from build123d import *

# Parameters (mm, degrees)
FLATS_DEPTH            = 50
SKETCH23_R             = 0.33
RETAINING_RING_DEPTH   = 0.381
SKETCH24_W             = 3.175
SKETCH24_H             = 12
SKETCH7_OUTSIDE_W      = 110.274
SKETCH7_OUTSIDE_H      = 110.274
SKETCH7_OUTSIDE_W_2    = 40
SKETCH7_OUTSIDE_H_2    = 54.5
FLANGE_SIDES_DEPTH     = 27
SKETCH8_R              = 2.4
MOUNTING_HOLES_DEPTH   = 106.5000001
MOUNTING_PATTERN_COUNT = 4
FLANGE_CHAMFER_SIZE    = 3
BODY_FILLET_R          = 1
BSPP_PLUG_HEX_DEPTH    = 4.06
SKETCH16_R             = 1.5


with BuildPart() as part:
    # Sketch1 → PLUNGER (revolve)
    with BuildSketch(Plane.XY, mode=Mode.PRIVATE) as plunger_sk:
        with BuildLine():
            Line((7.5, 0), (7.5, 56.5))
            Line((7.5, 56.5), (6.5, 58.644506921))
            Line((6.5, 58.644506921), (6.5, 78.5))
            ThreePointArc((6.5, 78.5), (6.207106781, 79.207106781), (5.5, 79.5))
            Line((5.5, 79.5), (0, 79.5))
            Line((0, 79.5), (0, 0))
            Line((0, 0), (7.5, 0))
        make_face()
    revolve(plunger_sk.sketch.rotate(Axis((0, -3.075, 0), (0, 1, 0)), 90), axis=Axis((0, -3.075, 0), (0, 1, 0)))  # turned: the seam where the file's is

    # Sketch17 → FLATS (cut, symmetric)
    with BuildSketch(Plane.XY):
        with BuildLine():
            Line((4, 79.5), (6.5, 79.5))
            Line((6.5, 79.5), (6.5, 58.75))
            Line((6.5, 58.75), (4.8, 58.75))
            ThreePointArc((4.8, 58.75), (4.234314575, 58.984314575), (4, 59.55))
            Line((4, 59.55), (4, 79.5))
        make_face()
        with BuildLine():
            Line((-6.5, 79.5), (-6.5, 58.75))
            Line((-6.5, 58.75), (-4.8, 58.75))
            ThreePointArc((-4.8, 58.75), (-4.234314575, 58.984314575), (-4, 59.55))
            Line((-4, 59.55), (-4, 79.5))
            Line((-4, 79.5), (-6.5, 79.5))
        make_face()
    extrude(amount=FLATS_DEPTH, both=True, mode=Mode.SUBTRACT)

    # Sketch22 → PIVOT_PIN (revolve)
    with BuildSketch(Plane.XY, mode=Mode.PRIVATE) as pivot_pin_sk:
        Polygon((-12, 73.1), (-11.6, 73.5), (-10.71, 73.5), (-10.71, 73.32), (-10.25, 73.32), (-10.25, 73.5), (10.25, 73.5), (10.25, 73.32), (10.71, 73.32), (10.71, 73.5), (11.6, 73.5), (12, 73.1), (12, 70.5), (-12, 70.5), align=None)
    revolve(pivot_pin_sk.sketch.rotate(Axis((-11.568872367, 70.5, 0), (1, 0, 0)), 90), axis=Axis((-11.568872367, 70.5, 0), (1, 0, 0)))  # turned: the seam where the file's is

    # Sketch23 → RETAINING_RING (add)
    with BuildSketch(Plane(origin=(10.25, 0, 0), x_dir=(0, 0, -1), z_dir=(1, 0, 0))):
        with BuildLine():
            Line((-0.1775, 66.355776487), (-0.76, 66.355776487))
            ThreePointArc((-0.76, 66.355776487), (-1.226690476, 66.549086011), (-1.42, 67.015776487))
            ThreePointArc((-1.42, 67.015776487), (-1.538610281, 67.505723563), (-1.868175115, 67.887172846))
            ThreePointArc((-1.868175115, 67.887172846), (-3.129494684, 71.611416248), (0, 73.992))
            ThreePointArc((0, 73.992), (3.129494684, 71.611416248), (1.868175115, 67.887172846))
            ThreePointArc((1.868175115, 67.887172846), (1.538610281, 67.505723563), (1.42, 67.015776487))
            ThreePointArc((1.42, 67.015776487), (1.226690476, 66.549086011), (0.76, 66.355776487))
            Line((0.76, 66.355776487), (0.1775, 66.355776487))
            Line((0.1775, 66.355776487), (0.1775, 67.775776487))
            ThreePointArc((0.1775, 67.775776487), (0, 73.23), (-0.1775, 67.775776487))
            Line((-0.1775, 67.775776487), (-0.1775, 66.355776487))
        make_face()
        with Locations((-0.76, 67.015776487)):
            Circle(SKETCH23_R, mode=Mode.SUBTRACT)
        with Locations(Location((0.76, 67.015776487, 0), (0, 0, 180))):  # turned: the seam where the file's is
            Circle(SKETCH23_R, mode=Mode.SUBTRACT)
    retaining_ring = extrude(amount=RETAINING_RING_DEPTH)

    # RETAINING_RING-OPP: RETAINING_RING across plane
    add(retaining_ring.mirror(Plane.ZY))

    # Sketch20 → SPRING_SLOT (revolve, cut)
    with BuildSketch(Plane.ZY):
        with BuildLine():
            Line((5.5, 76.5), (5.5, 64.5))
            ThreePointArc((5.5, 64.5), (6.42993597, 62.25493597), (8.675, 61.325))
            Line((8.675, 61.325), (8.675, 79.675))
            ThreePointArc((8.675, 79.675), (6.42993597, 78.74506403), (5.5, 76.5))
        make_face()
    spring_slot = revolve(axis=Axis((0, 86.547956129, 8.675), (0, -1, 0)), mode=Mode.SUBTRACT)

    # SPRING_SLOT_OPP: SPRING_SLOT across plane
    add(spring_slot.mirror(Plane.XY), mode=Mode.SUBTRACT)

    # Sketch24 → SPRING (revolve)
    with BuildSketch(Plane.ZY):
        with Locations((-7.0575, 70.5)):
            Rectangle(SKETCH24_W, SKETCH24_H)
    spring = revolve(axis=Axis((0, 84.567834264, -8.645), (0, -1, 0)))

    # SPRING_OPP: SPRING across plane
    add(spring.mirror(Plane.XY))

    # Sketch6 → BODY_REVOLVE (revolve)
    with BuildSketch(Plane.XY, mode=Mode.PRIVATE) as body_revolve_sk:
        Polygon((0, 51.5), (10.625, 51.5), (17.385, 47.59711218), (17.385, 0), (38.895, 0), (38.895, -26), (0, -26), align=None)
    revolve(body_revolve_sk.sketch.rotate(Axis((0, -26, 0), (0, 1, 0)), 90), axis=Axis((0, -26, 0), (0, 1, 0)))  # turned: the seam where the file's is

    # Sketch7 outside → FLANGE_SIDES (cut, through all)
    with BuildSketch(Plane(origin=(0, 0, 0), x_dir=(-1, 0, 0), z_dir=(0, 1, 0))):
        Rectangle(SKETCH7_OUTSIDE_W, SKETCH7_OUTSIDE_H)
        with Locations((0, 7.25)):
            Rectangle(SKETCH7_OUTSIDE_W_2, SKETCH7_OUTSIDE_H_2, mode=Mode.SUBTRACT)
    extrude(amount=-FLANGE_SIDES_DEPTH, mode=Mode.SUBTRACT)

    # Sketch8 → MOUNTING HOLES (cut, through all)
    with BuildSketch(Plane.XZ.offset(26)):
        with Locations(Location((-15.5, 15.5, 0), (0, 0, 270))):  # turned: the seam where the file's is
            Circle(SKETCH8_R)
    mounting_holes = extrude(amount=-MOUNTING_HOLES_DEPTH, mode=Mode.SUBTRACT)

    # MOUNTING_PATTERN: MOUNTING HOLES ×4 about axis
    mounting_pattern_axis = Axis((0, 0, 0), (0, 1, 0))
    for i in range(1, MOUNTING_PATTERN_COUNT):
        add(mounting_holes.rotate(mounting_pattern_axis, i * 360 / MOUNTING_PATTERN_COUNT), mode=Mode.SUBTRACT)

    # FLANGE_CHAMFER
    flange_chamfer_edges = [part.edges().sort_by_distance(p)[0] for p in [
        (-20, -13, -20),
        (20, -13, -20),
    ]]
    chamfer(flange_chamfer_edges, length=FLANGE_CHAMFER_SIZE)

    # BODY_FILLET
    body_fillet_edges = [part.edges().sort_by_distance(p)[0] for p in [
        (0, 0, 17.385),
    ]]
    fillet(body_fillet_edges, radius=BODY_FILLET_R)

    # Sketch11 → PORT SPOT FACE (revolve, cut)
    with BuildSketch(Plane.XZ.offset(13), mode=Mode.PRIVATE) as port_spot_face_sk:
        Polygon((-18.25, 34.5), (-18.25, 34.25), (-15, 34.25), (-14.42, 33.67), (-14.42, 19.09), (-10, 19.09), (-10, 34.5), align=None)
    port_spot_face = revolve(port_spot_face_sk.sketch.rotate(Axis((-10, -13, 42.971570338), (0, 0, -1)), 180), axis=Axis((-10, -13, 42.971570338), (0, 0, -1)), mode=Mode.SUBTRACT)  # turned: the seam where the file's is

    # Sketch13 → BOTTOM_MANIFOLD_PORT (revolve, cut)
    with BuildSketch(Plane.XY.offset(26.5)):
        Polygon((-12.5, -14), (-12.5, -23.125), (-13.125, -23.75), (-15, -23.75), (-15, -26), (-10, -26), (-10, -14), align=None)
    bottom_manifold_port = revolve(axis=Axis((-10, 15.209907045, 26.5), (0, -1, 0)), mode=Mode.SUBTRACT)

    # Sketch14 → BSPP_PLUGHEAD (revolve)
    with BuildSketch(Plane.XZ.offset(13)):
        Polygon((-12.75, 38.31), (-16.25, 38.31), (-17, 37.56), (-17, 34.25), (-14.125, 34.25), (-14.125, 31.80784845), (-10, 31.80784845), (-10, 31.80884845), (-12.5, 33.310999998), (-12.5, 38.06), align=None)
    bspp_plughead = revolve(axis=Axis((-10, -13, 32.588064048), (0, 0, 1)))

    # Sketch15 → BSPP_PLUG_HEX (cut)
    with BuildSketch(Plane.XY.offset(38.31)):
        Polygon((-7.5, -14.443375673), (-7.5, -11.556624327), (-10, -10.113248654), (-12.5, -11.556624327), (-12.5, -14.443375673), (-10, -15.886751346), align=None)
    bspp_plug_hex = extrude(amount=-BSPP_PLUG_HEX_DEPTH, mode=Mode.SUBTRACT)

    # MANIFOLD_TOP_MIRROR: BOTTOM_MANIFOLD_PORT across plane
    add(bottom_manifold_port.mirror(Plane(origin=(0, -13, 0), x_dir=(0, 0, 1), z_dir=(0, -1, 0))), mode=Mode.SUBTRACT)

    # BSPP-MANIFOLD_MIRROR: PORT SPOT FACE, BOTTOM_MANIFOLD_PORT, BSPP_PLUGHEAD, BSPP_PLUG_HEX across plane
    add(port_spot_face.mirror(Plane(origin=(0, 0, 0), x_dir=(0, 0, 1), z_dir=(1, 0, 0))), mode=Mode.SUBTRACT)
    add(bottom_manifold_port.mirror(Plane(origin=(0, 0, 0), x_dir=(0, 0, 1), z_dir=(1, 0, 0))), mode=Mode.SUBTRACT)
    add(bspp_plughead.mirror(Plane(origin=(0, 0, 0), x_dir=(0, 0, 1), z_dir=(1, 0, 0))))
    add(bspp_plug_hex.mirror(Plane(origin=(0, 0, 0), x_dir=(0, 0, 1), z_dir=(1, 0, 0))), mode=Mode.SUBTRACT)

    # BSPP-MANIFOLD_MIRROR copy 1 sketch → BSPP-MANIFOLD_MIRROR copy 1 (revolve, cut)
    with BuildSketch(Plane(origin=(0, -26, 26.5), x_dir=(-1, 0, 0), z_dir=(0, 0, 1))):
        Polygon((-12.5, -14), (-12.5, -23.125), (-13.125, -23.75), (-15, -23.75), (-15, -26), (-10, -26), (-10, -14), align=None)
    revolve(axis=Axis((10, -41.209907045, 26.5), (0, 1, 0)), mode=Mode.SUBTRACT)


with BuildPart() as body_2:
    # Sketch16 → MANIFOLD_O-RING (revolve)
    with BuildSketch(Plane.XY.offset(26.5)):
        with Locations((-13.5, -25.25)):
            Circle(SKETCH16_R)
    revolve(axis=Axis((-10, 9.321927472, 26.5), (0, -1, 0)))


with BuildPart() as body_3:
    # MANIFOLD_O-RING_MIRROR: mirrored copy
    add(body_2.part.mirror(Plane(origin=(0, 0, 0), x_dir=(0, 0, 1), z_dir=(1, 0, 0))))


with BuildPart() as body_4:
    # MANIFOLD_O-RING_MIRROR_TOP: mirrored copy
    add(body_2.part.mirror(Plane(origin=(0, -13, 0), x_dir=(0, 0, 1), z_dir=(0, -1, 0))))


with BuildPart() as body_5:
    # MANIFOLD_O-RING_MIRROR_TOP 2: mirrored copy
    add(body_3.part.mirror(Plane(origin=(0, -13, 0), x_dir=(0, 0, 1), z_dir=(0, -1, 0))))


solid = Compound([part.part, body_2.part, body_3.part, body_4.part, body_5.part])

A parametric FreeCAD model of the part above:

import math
import FreeCAD as App
import Part
import Sketcher

V = App.Vector
Q = App.Units.Quantity


def edges_at(feature, points):
    """Names of the edges that pass closest to the given points."""
    edges = feature.Shape.Edges
    near = lambda p: min(range(len(edges)), key=lambda i: edges[i].distToShape(Part.Vertex(*p))[0])
    return sorted({f"Edge{near(p) + 1}" for p in points})


def add_polygon(sketch, points):
    """Adds a closed chain of lines whose ends are joined by coincident constraints."""
    first, n = sketch.GeometryCount, len(points)
    for a, b in zip(points, points[1:] + points[:1]):
        sketch.addGeometry(Part.LineSegment(App.Vector(*a, 0), App.Vector(*b, 0)), False)
    for i in range(n):
        sketch.addConstraint(Sketcher.Constraint("Coincident", first + i, 2, first + (i + 1) % n, 1))

doc = App.newDocument("Part")
body = doc.addObject("PartDesign::Body", "Body")

# Sketch on XY plane
sketch1 = body.newObject("Sketcher::SketchObject", "Sketch")
sketch1.AttachmentSupport = (doc.getObject("XY_Plane"), [""])
sketch1.MapMode = "FlatFace"
sketch1.addGeometry(Part.LineSegment(V(7.5, 0, 0), V(7.5, 56.5, 0)), False)
sketch1.addGeometry(Part.LineSegment(V(7.5, 56.5, 0), V(6.5, 58.6, 0)), False)
sketch1.addGeometry(Part.LineSegment(V(6.5, 58.6, 0), V(6.5, 78.5, 0)), False)
sketch1.addGeometry(Part.ArcOfCircle(Part.Circle(V(5.5, 78.5, 0), V(0, 0, 1), 1), math.radians(0), math.radians(90)), False)
sketch1.addGeometry(Part.LineSegment(V(5.5, 79.5, 0), V(0, 79.5, 0)), False)
sketch1.addGeometry(Part.LineSegment(V(0, 79.5, 0), V(0, 0, 0)), False)
sketch1.addGeometry(Part.LineSegment(V(0, 0, 0), V(7.5, 0, 0)), False)
sketch1.addConstraint(Sketcher.Constraint("Coincident", 0, 2, 1, 1))
sketch1.addConstraint(Sketcher.Constraint("Coincident", 1, 2, 2, 1))
sketch1.addConstraint(Sketcher.Constraint("Tangent", 2, 2, 3, 1))
sketch1.addConstraint(Sketcher.Constraint("Tangent", 3, 2, 4, 1))
sketch1.addConstraint(Sketcher.Constraint("Coincident", 4, 2, 5, 1))
sketch1.addConstraint(Sketcher.Constraint("Coincident", 5, 2, 6, 1))
sketch1.addConstraint(Sketcher.Constraint("Coincident", 6, 2, 0, 1))
sketch1.addConstraint(Sketcher.Constraint("Vertical", 0))
sketch1.addConstraint(Sketcher.Constraint("Vertical", 2))
sketch1.addConstraint(Sketcher.Constraint("Horizontal", 4))
sketch1.addConstraint(Sketcher.Constraint("Vertical", 5))
sketch1.addConstraint(Sketcher.Constraint("Horizontal", 6))
sketch1.addConstraint(Sketcher.Constraint("Coincident", 5, 2, -1, 1))
sketch1.addConstraint(Sketcher.Constraint("Radius", 3, 1.0))
sketch1.addConstraint(Sketcher.Constraint("Angle", 1, Q("115 deg")))
sketch1.addConstraint(Sketcher.Constraint("DistanceX", 4, 2, 4, 1, 5.5))
sketch1.addConstraint(Sketcher.Constraint("DistanceX", 6, 1, 6, 2, 7.5))
sketch1.addConstraint(Sketcher.Constraint("DistanceY", 0, 1, 0, 2, 56.5))
sketch1.addConstraint(Sketcher.Constraint("DistanceY", 5, 2, 5, 1, 79.5))
revolution = body.newObject("PartDesign::Revolution", "Revolution")
revolution.Profile = sketch1
revolution.ReferenceAxis = (sketch1, ["V_Axis"])
revolution.Angle = 360

# Sketch on XY plane
sketch2 = body.newObject("Sketcher::SketchObject", "Sketch001")
sketch2.AttachmentSupport = (doc.getObject("XY_Plane"), [""])
sketch2.MapMode = "FlatFace"
sketch2.addGeometry(Part.LineSegment(V(6.5, 79.5, 0), V(4, 79.5, 0)), False)
sketch2.addGeometry(Part.LineSegment(V(4, 79.5, 0), V(4, 59.5, 0)), False)
sketch2.addGeometry(Part.ArcOfCircle(Part.Circle(V(4.8, 59.5, 0), V(0, 0, 1), 0.8), math.radians(180), math.radians(270)), False)
sketch2.addGeometry(Part.LineSegment(V(4.8, 58.8, 0), V(6.5, 58.8, 0)), False)
sketch2.addGeometry(Part.LineSegment(V(6.5, 58.8, 0), V(6.5, 79.5, 0)), False)
sketch2.addGeometry(Part.LineSegment(V(-6.5, 79.5, 0), V(-6.5, 58.8, 0)), False)
sketch2.addGeometry(Part.LineSegment(V(-6.5, 58.8, 0), V(-4.8, 58.8, 0)), False)
sketch2.addGeometry(Part.ArcOfCircle(Part.Circle(V(-4.8, 59.5, 0), V(0, 0, 1), 0.8), math.radians(-90), math.radians(0)), False)
sketch2.addGeometry(Part.LineSegment(V(-4, 59.5, 0), V(-4, 79.5, 0)), False)
sketch2.addGeometry(Part.LineSegment(V(-4, 79.5, 0), V(-6.5, 79.5, 0)), False)
sketch2.addConstraint(Sketcher.Constraint("Coincident", 0, 2, 1, 1))
sketch2.addConstraint(Sketcher.Constraint("Tangent", 1, 2, 2, 1))
sketch2.addConstraint(Sketcher.Constraint("Tangent", 2, 2, 3, 1))
sketch2.addConstraint(Sketcher.Constraint("Coincident", 3, 2, 4, 1))
sketch2.addConstraint(Sketcher.Constraint("Coincident", 4, 2, 0, 1))
sketch2.addConstraint(Sketcher.Constraint("Coincident", 5, 2, 6, 1))
sketch2.addConstraint(Sketcher.Constraint("Tangent", 6, 2, 7, 1))
sketch2.addConstraint(Sketcher.Constraint("Tangent", 7, 2, 8, 1))
sketch2.addConstraint(Sketcher.Constraint("Coincident", 8, 2, 9, 1))
sketch2.addConstraint(Sketcher.Constraint("Coincident", 9, 2, 5, 1))
sketch2.addConstraint(Sketcher.Constraint("Horizontal", 0))
sketch2.addConstraint(Sketcher.Constraint("Vertical", 1))
sketch2.addConstraint(Sketcher.Constraint("Horizontal", 3))
sketch2.addConstraint(Sketcher.Constraint("Vertical", 4))
sketch2.addConstraint(Sketcher.Constraint("Vertical", 5))
sketch2.addConstraint(Sketcher.Constraint("Horizontal", 6))
sketch2.addConstraint(Sketcher.Constraint("Vertical", 8))
sketch2.addConstraint(Sketcher.Constraint("Horizontal", 9))
sketch2.addConstraint(Sketcher.Constraint("Equal", 2, 7))
sketch2.addConstraint(Sketcher.Constraint("Symmetric", 2, 3, 7, 3, -2))
sketch2.addConstraint(Sketcher.Constraint("Symmetric", 4, 2, 9, 2, -2))
sketch2.addConstraint(Sketcher.Constraint("Radius", 2, 0.8))
sketch2.addConstraint(Sketcher.Constraint("DistanceX", 0, 2, 0, 1, 2.5))
sketch2.addConstraint(Sketcher.Constraint("DistanceX", -1, 1, 0, 2, 4.0))
sketch2.addConstraint(Sketcher.Constraint("DistanceY", 1, 2, 1, 1, 19.95))
sketch2.addConstraint(Sketcher.Constraint("DistanceY", -1, 1, 0, 2, 79.5))
pocket1 = body.newObject("PartDesign::Pocket", "Pocket")
pocket1.Profile = sketch2
pocket1.Length = 100
pocket1.Midplane = True

# Sketch on XY plane
sketch3 = body.newObject("Sketcher::SketchObject", "Sketch002")
sketch3.AttachmentSupport = (doc.getObject("XY_Plane"), [""])
sketch3.MapMode = "FlatFace"
add_polygon(sketch3, [(-11.6, 73.5), (-12, 73.1), (-12, 70.5), (12, 70.5), (12, 73.1), (11.6, 73.5), (10.71, 73.5), (10.71, 73.32), (10.25, 73.32), (10.25, 73.5), (-10.25, 73.5), (-10.25, 73.32), (-10.71, 73.32), (-10.71, 73.5)])  # lines 0-13
sketch3.addGeometry(Part.LineSegment(V(-12, 70.5, 0), V(12, 70.5, 0)), True)  # axis
sketch3.addConstraint(Sketcher.Constraint("Vertical", 1))
sketch3.addConstraint(Sketcher.Constraint("Horizontal", 2))
sketch3.addConstraint(Sketcher.Constraint("Vertical", 3))
sketch3.addConstraint(Sketcher.Constraint("Horizontal", 5))
sketch3.addConstraint(Sketcher.Constraint("Vertical", 6))
sketch3.addConstraint(Sketcher.Constraint("Horizontal", 7))
sketch3.addConstraint(Sketcher.Constraint("Vertical", 8))
sketch3.addConstraint(Sketcher.Constraint("Horizontal", 9))
sketch3.addConstraint(Sketcher.Constraint("Vertical", 10))
sketch3.addConstraint(Sketcher.Constraint("Horizontal", 11))
sketch3.addConstraint(Sketcher.Constraint("Vertical", 12))
sketch3.addConstraint(Sketcher.Constraint("Horizontal", 13))
sketch3.addConstraint(Sketcher.Constraint("Horizontal", 14))
sketch3.addConstraint(Sketcher.Constraint("Coincident", 14, 1, 1, 2))
sketch3.addConstraint(Sketcher.Constraint("Symmetric", 0, 2, 3, 2, -2))
sketch3.addConstraint(Sketcher.Constraint("Symmetric", 7, 2, 10, 2, -2))
sketch3.addConstraint(Sketcher.Constraint("Symmetric", 5, 2, 12, 2, -2))
sketch3.addConstraint(Sketcher.Constraint("Perpendicular", 0, 4))
sketch3.addConstraint(Sketcher.Constraint("Horizontal", 5, 2, 8, 2))
sketch3.addConstraint(Sketcher.Constraint("Vertical", 3, 2, 14, 2))
sketch3.addConstraint(Sketcher.Constraint("Equal", 5, 13))
sketch3.addConstraint(Sketcher.Constraint("DistanceX", 2, 1, 2, 2, 24.0))
sketch3.addConstraint(Sketcher.Constraint("DistanceX", 9, 2, 9, 1, 20.5))
sketch3.addConstraint(Sketcher.Constraint("DistanceY", 1, 2, 1, 1, 2.6))
sketch3.addConstraint(Sketcher.Constraint("DistanceY", 2, 2, 4, 2, 3.0))
sketch3.addConstraint(Sketcher.Constraint("DistanceX", 5, 2, 5, 1, 0.89))
sketch3.addConstraint(Sketcher.Constraint("DistanceY", 6, 2, 6, 1, 0.18))
sketch3.addConstraint(Sketcher.Constraint("DistanceY", -1, 1, 0, 2, 73.1))
revolution2 = body.newObject("PartDesign::Revolution", "Revolution001")
revolution2.Profile = sketch3
revolution2.ReferenceAxis = (sketch3, ["Axis0"])
revolution2.Angle = 360

# Sketch on YZ plane
sketch4 = body.newObject("Sketcher::SketchObject", "Sketch003")
sketch4.AttachmentSupport = (doc.getObject("YZ_Plane"), [""])
sketch4.MapMode = "FlatFace"
sketch4.AttachmentOffset = App.Placement(V(0, 0, 10.25), App.Rotation())
sketch4.addGeometry(Part.LineSegment(V(66.36, 0.76, 0), V(66.36, 0.18, 0)), False)
sketch4.addGeometry(Part.LineSegment(V(66.36, 0.18, 0), V(67.78, 0.18, 0)), False)
sketch4.addGeometry(Part.ArcOfCircle(Part.Circle(V(70.5, 0, 0), V(0, 0, 1), 2.73), math.radians(-176), math.radians(176)), False)
sketch4.addGeometry(Part.LineSegment(V(67.78, -0.18, 0), V(66.36, -0.18, 0)), False)
sketch4.addGeometry(Part.LineSegment(V(66.36, -0.18, 0), V(66.36, -0.76, 0)), False)
sketch4.addGeometry(Part.ArcOfCircle(Part.Circle(V(67.02, -0.76, 0), V(0, 0, 1), 0.66), math.radians(180), math.radians(270)), False)
sketch4.addGeometry(Part.ArcOfCircle(Part.Circle(V(67.02, -2.49, 0), V(0, 0, 1), 1.07), math.radians(36), math.radians(90)), False)
sketch4.addGeometry(Part.ArcOfCircle(Part.Circle(V(70.63, 0.09, 0), V(0, 0, 1), 3.37), math.radians(-144), math.radians(-2)), False)
sketch4.addGeometry(Part.ArcOfCircle(Part.Circle(V(70.63, -0.09, 0), V(0, 0, 1), 3.37), math.radians(2), math.radians(144)), False)
sketch4.addGeometry(Part.ArcOfCircle(Part.Circle(V(67.02, 2.49, 0), V(0, 0, 1), 1.07), math.radians(-90), math.radians(-36)), False)
sketch4.addGeometry(Part.ArcOfCircle(Part.Circle(V(67.02, 0.76, 0), V(0, 0, 1), 0.66), math.radians(90), math.radians(180)), False)
sketch4.addGeometry(Part.Circle(V(67.02, -0.76, 0), V(0, 0, 1), 0.33), False)
sketch4.addGeometry(Part.Circle(V(67.02, 0.76, 0), V(0, 0, 1), 0.33), False)
sketch4.addConstraint(Sketcher.Constraint("Coincident", 0, 2, 1, 1))
sketch4.addConstraint(Sketcher.Constraint("Coincident", 1, 2, 2, 2))
sketch4.addConstraint(Sketcher.Constraint("Coincident", 2, 1, 3, 1))
sketch4.addConstraint(Sketcher.Constraint("Coincident", 3, 2, 4, 1))
sketch4.addConstraint(Sketcher.Constraint("Tangent", 4, 2, 5, 1))
sketch4.addConstraint(Sketcher.Constraint("Tangent", 5, 2, 6, 2))
sketch4.addConstraint(Sketcher.Constraint("Tangent", 6, 1, 7, 1))
sketch4.addConstraint(Sketcher.Constraint("Coincident", 7, 2, 8, 1))
sketch4.addConstraint(Sketcher.Constraint("Tangent", 8, 2, 9, 2))
sketch4.addConstraint(Sketcher.Constraint("Tangent", 9, 1, 10, 1))
sketch4.addConstraint(Sketcher.Constraint("Tangent", 10, 2, 0, 1))
sketch4.addConstraint(Sketcher.Constraint("Vertical", 0))
sketch4.addConstraint(Sketcher.Constraint("Horizontal", 1))
sketch4.addConstraint(Sketcher.Constraint("Horizontal", 3))
sketch4.addConstraint(Sketcher.Constraint("Vertical", 4))
sketch4.addConstraint(Sketcher.Constraint("Coincident", 11, 3, 5, 3))
sketch4.addConstraint(Sketcher.Constraint("Coincident", 12, 3, 10, 3))
sketch4.addConstraint(Sketcher.Constraint("Equal", 7, 8))
sketch4.addConstraint(Sketcher.Constraint("Equal", 6, 9))
sketch4.addConstraint(Sketcher.Constraint("Equal", 5, 10))
sketch4.addConstraint(Sketcher.Constraint("Equal", 11, 12))
sketch4.addConstraint(Sketcher.Constraint("Symmetric", 7, 3, 8, 3, -1))
sketch4.addConstraint(Sketcher.Constraint("Symmetric", 5, 3, 10, 3, -1))
sketch4.addConstraint(Sketcher.Constraint("Symmetric", 1, 2, 2, 1, -1))
sketch4.addConstraint(Sketcher.Constraint("Vertical", 5, 3, 6, 3))
sketch4.addConstraint(Sketcher.Constraint("Diameter", 11, 0.66))
sketch4.addConstraint(Sketcher.Constraint("Radius", 2, 2.73))
sketch4.addConstraint(Sketcher.Constraint("Radius", 5, 0.66))
sketch4.addConstraint(Sketcher.Constraint("DistanceX", 1, 1, 1, 2, 1.42))
sketch4.addConstraint(Sketcher.Constraint("DistanceX", -1, 1, 2, 3, 70.5))
sketch4.addConstraint(Sketcher.Constraint("DistanceY", 5, 3, -1, 1, 0.76))
sketch4.addConstraint(Sketcher.Constraint("DistanceY", 0, 2, 0, 1, 0.5825))
sketch4.addConstraint(Sketcher.Constraint("DistanceX", -1, 1, 7, 2, 73.992))
sketch4.addConstraint(Sketcher.Constraint("Radius", 6, 1.071225))
sketch4.addConstraint(Sketcher.Constraint("Radius", 7, 3.367067))
pad1 = body.newObject("PartDesign::Pad", "Pad")
pad1.Profile = sketch4
pad1.Length = 0.381
doc.recompute()

mirrored = body.newObject("PartDesign::Mirrored", "Mirrored")
mirrored.Originals = [pad1]
mirrored.MirrorPlane = (doc.getObject("YZ_Plane"), [""])
body.Tip = mirrored

# Sketch on YZ plane
sketch5 = body.newObject("Sketcher::SketchObject", "Sketch004")
sketch5.AttachmentSupport = (doc.getObject("YZ_Plane"), [""])
sketch5.MapMode = "FlatFace"
sketch5.addGeometry(Part.LineSegment(V(76.5, 5.5, 0), V(64.5, 5.5, 0)), False)
sketch5.addGeometry(Part.ArcOfCircle(Part.Circle(V(64.5, 8.7, 0), V(0, 0, 1), 3.2), math.radians(-180), math.radians(-90)), False)
sketch5.addGeometry(Part.LineSegment(V(61.3, 8.7, 0), V(79.7, 8.7, 0)), False)
sketch5.addGeometry(Part.ArcOfCircle(Part.Circle(V(76.5, 8.7, 0), V(0, 0, 1), 3.2), math.radians(-90), math.radians(0)), False)
sketch5.addGeometry(Part.LineSegment(V(79.7, 8.7, 0), V(61.3, 8.7, 0)), True)  # axis
sketch5.addConstraint(Sketcher.Constraint("Tangent", 0, 2, 1, 2))
sketch5.addConstraint(Sketcher.Constraint("Coincident", 1, 1, 2, 1))
sketch5.addConstraint(Sketcher.Constraint("Coincident", 2, 2, 3, 2))
sketch5.addConstraint(Sketcher.Constraint("Tangent", 3, 1, 0, 1))
sketch5.addConstraint(Sketcher.Constraint("Horizontal", 0))
sketch5.addConstraint(Sketcher.Constraint("Horizontal", 2))
sketch5.addConstraint(Sketcher.Constraint("Horizontal", 4))
sketch5.addConstraint(Sketcher.Constraint("Coincident", 4, 1, 2, 2))
sketch5.addConstraint(Sketcher.Constraint("Equal", 1, 3))
sketch5.addConstraint(Sketcher.Constraint("Horizontal", 3, 3, 1, 1))
sketch5.addConstraint(Sketcher.Constraint("Equal", 2, 4))
sketch5.addConstraint(Sketcher.Constraint("DistanceX", 0, 2, 0, 1, 12.0))
sketch5.addConstraint(Sketcher.Constraint("Radius", 1, 3.175))
sketch5.addConstraint(Sketcher.Constraint("DistanceX", -1, 1, 1, 3, 64.5))
sketch5.addConstraint(Sketcher.Constraint("DistanceY", -1, 1, 0, 2, 5.5))
groove = body.newObject("PartDesign::Groove", "Groove")
groove.Profile = sketch5
groove.ReferenceAxis = (sketch5, ["Axis0"])
groove.Angle = 360
doc.recompute()

mirrored2 = body.newObject("PartDesign::Mirrored", "Mirrored001")
mirrored2.Originals = [groove]
mirrored2.MirrorPlane = (doc.getObject("XY_Plane"), [""])
body.Tip = mirrored2

# Sketch on YZ plane
sketch6 = body.newObject("Sketcher::SketchObject", "Sketch005")
sketch6.AttachmentSupport = (doc.getObject("YZ_Plane"), [""])
sketch6.MapMode = "FlatFace"
add_polygon(sketch6, [(76.5, -8.6), (64.5, -8.6), (64.5, -5.5), (76.5, -5.5)])  # lines 0-3
sketch6.addGeometry(Part.LineSegment(V(76.5, -8.6, 0), V(64.5, -8.6, 0)), True)  # axis
sketch6.addConstraint(Sketcher.Constraint("Horizontal", 0))
sketch6.addConstraint(Sketcher.Constraint("Vertical", 1))
sketch6.addConstraint(Sketcher.Constraint("Horizontal", 2))
sketch6.addConstraint(Sketcher.Constraint("Vertical", 3))
sketch6.addConstraint(Sketcher.Constraint("Horizontal", 4))
sketch6.addConstraint(Sketcher.Constraint("Coincident", 4, 1, 3, 2))
sketch6.addConstraint(Sketcher.Constraint("Vertical", 1, 2, 4, 2))
sketch6.addConstraint(Sketcher.Constraint("DistanceX", 0, 2, 0, 1, 12.0))
sketch6.addConstraint(Sketcher.Constraint("DistanceX", -1, 1, 0, 2, 64.5))
sketch6.addConstraint(Sketcher.Constraint("DistanceY", 1, 1, 1, 2, 3.175))
sketch6.addConstraint(Sketcher.Constraint("DistanceY", 1, 2, -1, 1, 5.47))
revolution3 = body.newObject("PartDesign::Revolution", "Revolution002")
revolution3.Profile = sketch6
revolution3.ReferenceAxis = (sketch6, ["Axis0"])
revolution3.Angle = 360
doc.recompute()

mirrored3 = body.newObject("PartDesign::Mirrored", "Mirrored002")
mirrored3.Originals = [revolution3]
mirrored3.MirrorPlane = (doc.getObject("XY_Plane"), [""])
body.Tip = mirrored3

# Sketch on XY plane
sketch7 = body.newObject("Sketcher::SketchObject", "Sketch006")
sketch7.AttachmentSupport = (doc.getObject("XY_Plane"), [""])
sketch7.MapMode = "FlatFace"
add_polygon(sketch7, [(11, 52), (0, 52), (0, -26), (39, -26), (39, 0), (17, 0), (17, 48)])  # lines 0-6
sketch7.addConstraint(Sketcher.Constraint("Horizontal", 0))
sketch7.addConstraint(Sketcher.Constraint("Vertical", 1))
sketch7.addConstraint(Sketcher.Constraint("Horizontal", 2))
sketch7.addConstraint(Sketcher.Constraint("Vertical", 3))
sketch7.addConstraint(Sketcher.Constraint("Horizontal", 4))
sketch7.addConstraint(Sketcher.Constraint("Vertical", 5))
sketch7.addConstraint(Sketcher.Constraint("PointOnObject", 0, 2, -2))
sketch7.addConstraint(Sketcher.Constraint("PointOnObject", 3, 2, -1))
sketch7.addConstraint(Sketcher.Constraint("DistanceY", 3, 1, 3, 2, 26.0))
sketch7.addConstraint(Sketcher.Constraint("Angle", 6, Q("150 deg")))
sketch7.addConstraint(Sketcher.Constraint("DistanceY", 1, 2, 1, 1, 77.5))
sketch7.addConstraint(Sketcher.Constraint("DistanceX", 4, 2, 4, 1, 21.51))
sketch7.addConstraint(Sketcher.Constraint("DistanceX", 0, 2, 0, 1, 10.625))
sketch7.addConstraint(Sketcher.Constraint("DistanceX", 2, 1, 2, 2, 38.895))
revolution4 = body.newObject("PartDesign::Revolution", "Revolution003")
revolution4.Profile = sketch7
revolution4.ReferenceAxis = (sketch7, ["V_Axis"])
revolution4.Angle = 360

# Sketch on XZ plane
sketch8 = body.newObject("Sketcher::SketchObject", "Sketch007")
sketch8.AttachmentSupport = (doc.getObject("XZ_Plane"), [""])
sketch8.MapMode = "FlatFace"
add_polygon(sketch8, [(55, 55), (55, -55), (-55, -55), (-55, 55)])  # lines 0-3
add_polygon(sketch8, [(-20, -20), (20, -20), (20, 34), (-20, 34)])  # lines 4-7
sketch8.addConstraint(Sketcher.Constraint("Vertical", 0))
sketch8.addConstraint(Sketcher.Constraint("Horizontal", 1))
sketch8.addConstraint(Sketcher.Constraint("Vertical", 2))
sketch8.addConstraint(Sketcher.Constraint("Horizontal", 3))
sketch8.addConstraint(Sketcher.Constraint("Horizontal", 4))
sketch8.addConstraint(Sketcher.Constraint("Vertical", 5))
sketch8.addConstraint(Sketcher.Constraint("Horizontal", 6))
sketch8.addConstraint(Sketcher.Constraint("Vertical", 7))
sketch8.addConstraint(Sketcher.Constraint("Symmetric", 0, 2, 2, 2, -1, 1))
sketch8.addConstraint(Sketcher.Constraint("Equal", 3, 0))
sketch8.addConstraint(Sketcher.Constraint("DistanceX", 4, 1, 4, 2, 40.0))
sketch8.addConstraint(Sketcher.Constraint("DistanceY", 5, 1, 5, 2, 54.5))
sketch8.addConstraint(Sketcher.Constraint("DistanceX", -1, 1, 4, 2, 20.0))
sketch8.addConstraint(Sketcher.Constraint("DistanceY", 4, 2, -1, 1, 20.0))
sketch8.addConstraint(Sketcher.Constraint("DistanceX", 1, 2, 1, 1, 110.274))
pocket2 = body.newObject("PartDesign::Pocket", "Pocket001")
pocket2.Profile = sketch8
pocket2.Type = "ThroughAll"
pocket2.Reversed = True

# Sketch on XZ plane
sketch9 = body.newObject("Sketcher::SketchObject", "Sketch008")
sketch9.AttachmentSupport = (doc.getObject("XZ_Plane"), [""])
sketch9.MapMode = "FlatFace"
sketch9.AttachmentOffset = App.Placement(V(0, 0, 26), App.Rotation())
sketch9.addGeometry(Part.Circle(V(-15.5, 15.5, 0), V(0, 0, 1), 2.4), False)
sketch9.addConstraint(Sketcher.Constraint("Diameter", 0, 4.8))
sketch9.addConstraint(Sketcher.Constraint("DistanceX", 0, 3, -1, 1, 15.5))
sketch9.addConstraint(Sketcher.Constraint("DistanceY", -1, 1, 0, 3, 15.5))
pocket3 = body.newObject("PartDesign::Pocket", "Pocket002")
pocket3.Profile = sketch9
pocket3.Type = "ThroughAll"
doc.recompute()

polarpattern = body.newObject("PartDesign::PolarPattern", "PolarPattern")
polarpattern.Originals = [pocket3]
polarpattern.Axis = (doc.getObject("Y_Axis"), [""])
polarpattern.Angle = 360
polarpattern.Occurrences = 4
body.Tip = polarpattern
doc.recompute()

chamfer = body.newObject("PartDesign::Chamfer", "Chamfer")
chamfer.Base = (polarpattern, edges_at(polarpattern, [(-20, -13, -20), (20, -13, -20)]))
chamfer.Size = 3
doc.recompute()

fillet = body.newObject("PartDesign::Fillet", "Fillet")
fillet.Base = (chamfer, edges_at(chamfer, [(0, 0, 17.385)]))
fillet.Radius = 1

# Sketch on XZ plane
sketch10 = body.newObject("Sketcher::SketchObject", "Sketch009")
sketch10.AttachmentSupport = (doc.getObject("XZ_Plane"), [""])
sketch10.MapMode = "FlatFace"
sketch10.AttachmentOffset = App.Placement(V(0, 0, 13), App.Rotation())
add_polygon(sketch10, [(-18.25, 34.5), (-18.25, 34.25), (-15, 34.25), (-14.42, 33.67), (-14.42, 19.09), (-10, 19.09), (-10, 34.5)])  # lines 0-6
sketch10.addGeometry(Part.LineSegment(V(-10, 34.5, 0), V(-10, 19.09, 0)), True)  # axis
sketch10.addConstraint(Sketcher.Constraint("Vertical", 0))
sketch10.addConstraint(Sketcher.Constraint("Horizontal", 1))
sketch10.addConstraint(Sketcher.Constraint("Vertical", 3))
sketch10.addConstraint(Sketcher.Constraint("Horizontal", 4))
sketch10.addConstraint(Sketcher.Constraint("Vertical", 5))
sketch10.addConstraint(Sketcher.Constraint("Horizontal", 6))
sketch10.addConstraint(Sketcher.Constraint("Vertical", 7))
sketch10.addConstraint(Sketcher.Constraint("Coincident", 7, 1, 5, 2))
sketch10.addConstraint(Sketcher.Constraint("Horizontal", 3, 2, 7, 2))
sketch10.addConstraint(Sketcher.Constraint("Angle", 2, Q("-45 deg")))
sketch10.addConstraint(Sketcher.Constraint("DistanceX", 1, 2, -1, 1, 15.0))
sketch10.addConstraint(Sketcher.Constraint("DistanceX", 4, 2, -1, 1, 10.0))
sketch10.addConstraint(Sketcher.Constraint("DistanceX", 1, 1, 1, 2, 3.25))
sketch10.addConstraint(Sketcher.Constraint("DistanceX", 4, 1, 4, 2, 4.42))
sketch10.addConstraint(Sketcher.Constraint("DistanceY", 0, 2, 0, 1, 0.25))
sketch10.addConstraint(Sketcher.Constraint("DistanceY", 3, 2, 3, 1, 14.58))
sketch10.addConstraint(Sketcher.Constraint("DistanceY", -1, 1, 5, 2, 34.5))
groove2 = body.newObject("PartDesign::Groove", "Groove001")
groove2.Profile = sketch10
groove2.ReferenceAxis = (sketch10, ["Axis0"])
groove2.Angle = 360

# Sketch on XY plane
sketch11 = body.newObject("Sketcher::SketchObject", "Sketch010")
sketch11.AttachmentSupport = (doc.getObject("XY_Plane"), [""])
sketch11.MapMode = "FlatFace"
sketch11.AttachmentOffset = App.Placement(V(0, 0, 26.5), App.Rotation())
add_polygon(sketch11, [(-12.5, -14), (-12.5, -23.1), (-13.1, -23.8), (-15, -23.8), (-15, -26), (-10, -26), (-10, -14)])  # lines 0-6
sketch11.addGeometry(Part.LineSegment(V(-10, -14, 0), V(-10, -26, 0)), True)  # axis
sketch11.addConstraint(Sketcher.Constraint("Vertical", 0))
sketch11.addConstraint(Sketcher.Constraint("Horizontal", 2))
sketch11.addConstraint(Sketcher.Constraint("Vertical", 3))
sketch11.addConstraint(Sketcher.Constraint("Horizontal", 4))
sketch11.addConstraint(Sketcher.Constraint("Vertical", 5))
sketch11.addConstraint(Sketcher.Constraint("Horizontal", 6))
sketch11.addConstraint(Sketcher.Constraint("Vertical", 7))
sketch11.addConstraint(Sketcher.Constraint("Coincident", 7, 1, 5, 2))
sketch11.addConstraint(Sketcher.Constraint("Horizontal", 3, 2, 7, 2))
sketch11.addConstraint(Sketcher.Constraint("DistanceX", 4, 1, 4, 2, 5.0))
sketch11.addConstraint(Sketcher.Constraint("DistanceY", 5, 1, 5, 2, 12.0))
sketch11.addConstraint(Sketcher.Constraint("Angle", 1, Q("-135 deg")))
sketch11.addConstraint(Sketcher.Constraint("DistanceX", 6, 2, 6, 1, 2.5))
sketch11.addConstraint(Sketcher.Constraint("DistanceX", 2, 2, -1, 1, 15.0))
sketch11.addConstraint(Sketcher.Constraint("DistanceY", 3, 2, -1, 1, 26.0))
sketch11.addConstraint(Sketcher.Constraint("DistanceY", 3, 2, 3, 1, 2.25))
sketch11.addConstraint(Sketcher.Constraint("DistanceX", 2, 2, 2, 1, 1.875))
groove3 = body.newObject("PartDesign::Groove", "Groove002")
groove3.Profile = sketch11
groove3.ReferenceAxis = (sketch11, ["Axis0"])
groove3.Angle = 360

# Sketch on XZ plane
sketch12 = body.newObject("Sketcher::SketchObject", "Sketch011")
sketch12.AttachmentSupport = (doc.getObject("XZ_Plane"), [""])
sketch12.MapMode = "FlatFace"
sketch12.AttachmentOffset = App.Placement(V(0, 0, 13), App.Rotation())
add_polygon(sketch12, [(-12.75, 38.31), (-16.25, 38.31), (-17, 37.56), (-17, 34.25), (-14.125, 34.25), (-14.125, 31.807848), (-10, 31.807848), (-10, 31.808848), (-12.5, 33.311), (-12.5, 38.06)])  # lines 0-9
sketch12.addGeometry(Part.LineSegment(V(-10, 31.807848, 0), V(-10, 38.31, 0)), True)  # axis
sketch12.addConstraint(Sketcher.Constraint("Horizontal", 0))
sketch12.addConstraint(Sketcher.Constraint("Vertical", 2))
sketch12.addConstraint(Sketcher.Constraint("Horizontal", 3))
sketch12.addConstraint(Sketcher.Constraint("Vertical", 4))
sketch12.addConstraint(Sketcher.Constraint("Horizontal", 5))
sketch12.addConstraint(Sketcher.Constraint("Vertical", 6))
sketch12.addConstraint(Sketcher.Constraint("Vertical", 8))
sketch12.addConstraint(Sketcher.Constraint("Vertical", 10))
sketch12.addConstraint(Sketcher.Constraint("Coincident", 10, 1, 5, 2))
sketch12.addConstraint(Sketcher.Constraint("Perpendicular", 1, 9))
sketch12.addConstraint(Sketcher.Constraint("Horizontal", 9, 2, 10, 2))
sketch12.addConstraint(Sketcher.Constraint("Angle", 1, Q("-135 deg")))
sketch12.addConstraint(Sketcher.Constraint("Angle", 7, Q("149 deg")))
sketch12.addConstraint(Sketcher.Constraint("DistanceX", 0, 2, 0, 1, 3.5))
sketch12.addConstraint(Sketcher.Constraint("DistanceX", 1, 2, -1, 1, 17.0))
sketch12.addConstraint(Sketcher.Constraint("DistanceX", 5, 2, -1, 1, 10.0))
sketch12.addConstraint(Sketcher.Constraint("DistanceY", 2, 2, 2, 1, 3.31))
sketch12.addConstraint(Sketcher.Constraint("DistanceX", 7, 2, -1, 1, 12.5))
sketch12.addConstraint(Sketcher.Constraint("DistanceY", 1, 2, 8, 2, 0.5))
sketch12.addConstraint(Sketcher.Constraint("DistanceX", 3, 1, 3, 2, 2.875))
sketch12.addConstraint(Sketcher.Constraint("DistanceY", 6, 1, 6, 2, 0.001))
sketch12.addConstraint(Sketcher.Constraint("DistanceY", 8, 1, 8, 2, 4.749))
sketch12.addConstraint(Sketcher.Constraint("DistanceY", -1, 1, 0, 2, 38.31))
revolution5 = body.newObject("PartDesign::Revolution", "Revolution004")
revolution5.Profile = sketch12
revolution5.ReferenceAxis = (sketch12, ["Axis0"])
revolution5.Angle = 360

# Sketch on XY plane
sketch13 = body.newObject("Sketcher::SketchObject", "Sketch012")
sketch13.AttachmentSupport = (doc.getObject("XY_Plane"), [""])
sketch13.MapMode = "FlatFace"
sketch13.AttachmentOffset = App.Placement(V(0, 0, 38.31), App.Rotation())
add_polygon(sketch13, [(-7.5, -14.4), (-7.5, -11.6), (-10, -10.1), (-12.5, -11.6), (-12.5, -14.4), (-10, -15.9)])  # lines 0-5
sketch13.addConstraint(Sketcher.Constraint("Vertical", 0))
sketch13.addConstraint(Sketcher.Constraint("Vertical", 3))
sketch13.addConstraint(Sketcher.Constraint("Parallel", 1, 4))
sketch13.addConstraint(Sketcher.Constraint("Parallel", 2, 5))
sketch13.addConstraint(Sketcher.Constraint("Horizontal", 0, 2, 2, 2))
sketch13.addConstraint(Sketcher.Constraint("Horizontal", 3, 2, 5, 2))
sketch13.addConstraint(Sketcher.Constraint("Vertical", 1, 2, 4, 2))
sketch13.addConstraint(Sketcher.Constraint("Angle", 1, Q("150 deg")))
sketch13.addConstraint(Sketcher.Constraint("DistanceX", 1, 2, -1, 1, 10.0))
sketch13.addConstraint(Sketcher.Constraint("DistanceX", 2, 2, 0, 2, 5.0))
sketch13.addConstraint(Sketcher.Constraint("DistanceY", 0, 1, 0, 2, 2.886751))
sketch13.addConstraint(Sketcher.Constraint("DistanceY", 1, 2, -1, 1, 10.113249))
pocket4 = body.newObject("PartDesign::Pocket", "Pocket003")
pocket4.Profile = sketch13
pocket4.Length = 4.06
doc.recompute()

datumplane = body.newObject("PartDesign::Plane", "DatumPlane")
datumplane.AttachmentSupport = (doc.getObject("XZ_Plane"), [""])
datumplane.MapMode = "FlatFace"
datumplane.AttachmentOffset = App.Placement(V(0, 0, 13), App.Rotation())
mirrored4 = body.newObject("PartDesign::Mirrored", "Mirrored003")
mirrored4.Originals = [groove3]
mirrored4.MirrorPlane = (datumplane, [""])
body.Tip = mirrored4
doc.recompute()

mirrored5 = body.newObject("PartDesign::Mirrored", "Mirrored004")
mirrored5.Originals = [groove2, groove3, revolution5, pocket4]
mirrored5.MirrorPlane = (doc.getObject("YZ_Plane"), [""])
body.Tip = mirrored5

# Sketch on XY plane
sketch14 = body.newObject("Sketcher::SketchObject", "Sketch013")
sketch14.AttachmentSupport = (doc.getObject("XY_Plane"), [""])
sketch14.MapMode = "FlatFace"
sketch14.AttachmentOffset = App.Placement(V(0, 0, 26.5), App.Rotation())
add_polygon(sketch14, [(12.5, -12), (12.5, -2.9), (13.1, -2.2), (15, -2.2), (15, 0), (10, 0), (10, -12)])  # lines 0-6
sketch14.addGeometry(Part.LineSegment(V(10, -12, 0), V(10, 0, 0)), True)  # axis
sketch14.addConstraint(Sketcher.Constraint("Vertical", 0))
sketch14.addConstraint(Sketcher.Constraint("Horizontal", 2))
sketch14.addConstraint(Sketcher.Constraint("Vertical", 3))
sketch14.addConstraint(Sketcher.Constraint("Horizontal", 4))
sketch14.addConstraint(Sketcher.Constraint("Vertical", 5))
sketch14.addConstraint(Sketcher.Constraint("Horizontal", 6))
sketch14.addConstraint(Sketcher.Constraint("Vertical", 7))
sketch14.addConstraint(Sketcher.Constraint("Coincident", 7, 1, 5, 2))
sketch14.addConstraint(Sketcher.Constraint("PointOnObject", 3, 2, -1))
sketch14.addConstraint(Sketcher.Constraint("PointOnObject", 7, 2, -1))
sketch14.addConstraint(Sketcher.Constraint("DistanceX", 4, 2, 4, 1, 5.0))
sketch14.addConstraint(Sketcher.Constraint("DistanceY", 5, 2, 5, 1, 12.0))
sketch14.addConstraint(Sketcher.Constraint("Angle", 1, Q("45 deg")))
sketch14.addConstraint(Sketcher.Constraint("DistanceX", 6, 1, 6, 2, 2.5))
sketch14.addConstraint(Sketcher.Constraint("DistanceX", -1, 1, 2, 2, 15.0))
sketch14.addConstraint(Sketcher.Constraint("DistanceY", 3, 1, 3, 2, 2.25))
sketch14.addConstraint(Sketcher.Constraint("DistanceX", 2, 1, 2, 2, 1.875))
groove4 = body.newObject("PartDesign::Groove", "Groove003")
groove4.Profile = sketch14
groove4.ReferenceAxis = (sketch14, ["Axis0"])
groove4.Angle = 360
body2 = doc.addObject("PartDesign::Body", "Body001")

# Sketch on XY plane
sketch15 = body2.newObject("Sketcher::SketchObject", "Sketch014")
sketch15.AttachmentSupport = (doc.getObject("XY_Plane001"), [""])
sketch15.MapMode = "FlatFace"
sketch15.AttachmentOffset = App.Placement(V(0, 0, 26.5), App.Rotation())
sketch15.addGeometry(Part.Circle(V(-13.5, -25.2, 0), V(0, 0, 1), 1.5), False)
sketch15.addGeometry(Part.LineSegment(V(-10, -25.2, 0), V(-10, -35.2, 0)), True)  # axis
sketch15.addConstraint(Sketcher.Constraint("Vertical", 1))
sketch15.addConstraint(Sketcher.Constraint("Horizontal", 0, 3, 1, 1))
sketch15.addConstraint(Sketcher.Constraint("Diameter", 0, 3.0))
sketch15.addConstraint(Sketcher.Constraint("DistanceY", 1, 2, 1, 1, 10.0))
sketch15.addConstraint(Sketcher.Constraint("DistanceX", 1, 1, -1, 1, 10.0))
sketch15.addConstraint(Sketcher.Constraint("DistanceX", 0, 3, -1, 1, 13.5))
sketch15.addConstraint(Sketcher.Constraint("DistanceY", 0, 3, -1, 1, 25.25))
revolution6 = body2.newObject("PartDesign::Revolution", "Revolution005")
revolution6.Profile = sketch15
revolution6.ReferenceAxis = (sketch15, ["Axis0"])
revolution6.Angle = 360
body3 = doc.addObject("PartDesign::Body", "Body002")
doc.recompute()

mirroring = doc.addObject("Part::Mirroring", "Mirroring")
mirroring.Source = body2
mirroring.Base = V(0, 0, 0)
mirroring.Normal = V(1, 0, 0)
body3.BaseFeature = mirroring
doc.recompute()
body4 = doc.addObject("PartDesign::Body", "Body003")
doc.recompute()

mirroring2 = doc.addObject("Part::Mirroring", "Mirroring001")
mirroring2.Source = body2
mirroring2.Base = V(0, -13, 0)
mirroring2.Normal = V(0, -1, 0)
body4.BaseFeature = mirroring2
doc.recompute()
body5 = doc.addObject("PartDesign::Body", "Body004")
doc.recompute()

mirroring3 = doc.addObject("Part::Mirroring", "Mirroring002")
mirroring3.Source = body3
mirroring3.Base = V(0, -13, 0)
mirroring3.Normal = V(0, -1, 0)
body5.BaseFeature = mirroring3
doc.recompute()
mirroring.Visibility = False
mirroring2.Visibility = False
mirroring3.Visibility = False

doc.recompute()
